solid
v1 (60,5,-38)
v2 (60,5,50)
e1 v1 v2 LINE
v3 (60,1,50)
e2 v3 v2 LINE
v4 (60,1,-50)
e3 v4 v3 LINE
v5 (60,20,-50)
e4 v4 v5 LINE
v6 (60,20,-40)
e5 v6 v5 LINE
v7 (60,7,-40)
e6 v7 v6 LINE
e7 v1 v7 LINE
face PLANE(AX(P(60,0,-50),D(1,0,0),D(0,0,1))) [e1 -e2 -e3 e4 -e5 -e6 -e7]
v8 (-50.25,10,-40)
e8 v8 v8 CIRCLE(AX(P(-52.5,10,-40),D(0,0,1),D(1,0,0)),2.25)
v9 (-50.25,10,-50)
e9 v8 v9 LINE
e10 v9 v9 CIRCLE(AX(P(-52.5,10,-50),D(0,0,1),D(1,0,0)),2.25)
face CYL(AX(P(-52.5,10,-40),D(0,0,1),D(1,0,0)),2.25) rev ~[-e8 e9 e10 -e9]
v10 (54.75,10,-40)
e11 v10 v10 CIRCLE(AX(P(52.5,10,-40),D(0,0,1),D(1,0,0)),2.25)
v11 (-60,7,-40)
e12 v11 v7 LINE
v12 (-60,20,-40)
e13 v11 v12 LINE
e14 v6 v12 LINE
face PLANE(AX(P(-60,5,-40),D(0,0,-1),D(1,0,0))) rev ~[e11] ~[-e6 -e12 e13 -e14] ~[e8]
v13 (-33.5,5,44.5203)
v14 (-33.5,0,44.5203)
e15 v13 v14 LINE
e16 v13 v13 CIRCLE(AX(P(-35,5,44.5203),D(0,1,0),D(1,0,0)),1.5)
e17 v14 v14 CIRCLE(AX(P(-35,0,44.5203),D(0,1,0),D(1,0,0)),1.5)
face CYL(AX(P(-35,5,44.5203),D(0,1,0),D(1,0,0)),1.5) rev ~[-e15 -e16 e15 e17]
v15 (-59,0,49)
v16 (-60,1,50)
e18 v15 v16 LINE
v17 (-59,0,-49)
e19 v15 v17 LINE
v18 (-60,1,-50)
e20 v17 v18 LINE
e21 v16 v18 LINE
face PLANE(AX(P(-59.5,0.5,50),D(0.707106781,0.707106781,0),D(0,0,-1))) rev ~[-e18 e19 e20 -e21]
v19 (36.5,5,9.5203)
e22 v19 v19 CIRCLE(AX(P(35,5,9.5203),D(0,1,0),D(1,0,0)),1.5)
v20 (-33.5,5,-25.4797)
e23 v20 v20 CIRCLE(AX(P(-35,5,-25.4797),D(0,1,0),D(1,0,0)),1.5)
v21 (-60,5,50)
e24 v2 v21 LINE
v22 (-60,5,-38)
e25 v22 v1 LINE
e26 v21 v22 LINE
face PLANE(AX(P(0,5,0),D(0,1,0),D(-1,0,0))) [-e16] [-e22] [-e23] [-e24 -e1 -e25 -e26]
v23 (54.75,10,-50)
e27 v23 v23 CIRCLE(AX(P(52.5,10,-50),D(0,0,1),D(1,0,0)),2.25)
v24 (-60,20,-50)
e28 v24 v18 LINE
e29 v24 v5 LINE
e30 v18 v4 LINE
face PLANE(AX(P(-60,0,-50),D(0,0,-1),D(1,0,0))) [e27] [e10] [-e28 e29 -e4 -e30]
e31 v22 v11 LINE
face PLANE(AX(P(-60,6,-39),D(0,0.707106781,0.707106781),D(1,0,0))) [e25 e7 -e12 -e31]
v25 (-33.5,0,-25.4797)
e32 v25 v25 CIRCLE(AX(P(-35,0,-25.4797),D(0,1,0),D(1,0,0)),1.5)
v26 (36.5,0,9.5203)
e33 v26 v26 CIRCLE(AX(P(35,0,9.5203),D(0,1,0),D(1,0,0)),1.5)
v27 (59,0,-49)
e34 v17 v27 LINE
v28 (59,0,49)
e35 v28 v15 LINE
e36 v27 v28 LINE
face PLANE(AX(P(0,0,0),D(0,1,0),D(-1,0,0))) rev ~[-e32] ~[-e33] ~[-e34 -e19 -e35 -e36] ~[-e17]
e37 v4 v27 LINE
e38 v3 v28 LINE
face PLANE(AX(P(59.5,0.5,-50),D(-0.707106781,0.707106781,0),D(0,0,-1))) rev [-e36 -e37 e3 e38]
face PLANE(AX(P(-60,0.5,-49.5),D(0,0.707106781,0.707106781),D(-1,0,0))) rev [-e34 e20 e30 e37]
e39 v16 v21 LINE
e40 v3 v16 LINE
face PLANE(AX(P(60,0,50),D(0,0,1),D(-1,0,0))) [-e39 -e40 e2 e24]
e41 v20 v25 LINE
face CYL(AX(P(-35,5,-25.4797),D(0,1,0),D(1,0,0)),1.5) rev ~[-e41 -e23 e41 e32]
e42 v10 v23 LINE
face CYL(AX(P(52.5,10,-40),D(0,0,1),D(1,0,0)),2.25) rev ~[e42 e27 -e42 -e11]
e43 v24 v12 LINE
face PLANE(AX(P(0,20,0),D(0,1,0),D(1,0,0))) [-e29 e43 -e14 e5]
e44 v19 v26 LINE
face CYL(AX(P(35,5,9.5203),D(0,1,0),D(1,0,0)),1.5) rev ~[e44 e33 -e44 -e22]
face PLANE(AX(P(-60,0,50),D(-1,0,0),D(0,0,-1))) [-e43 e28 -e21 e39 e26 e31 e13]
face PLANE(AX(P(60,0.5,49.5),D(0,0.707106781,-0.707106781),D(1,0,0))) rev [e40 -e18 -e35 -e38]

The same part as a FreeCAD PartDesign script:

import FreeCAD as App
import Part
import Sketcher

V = App.Vector


def edges_at(feature, points):
    """Names of the edges that pass closest to the given points."""
    edges = feature.Shape.Edges
    near = lambda p: min(range(len(edges)), key=lambda i: edges[i].distToShape(Part.Vertex(*p))[0])
    return sorted({f"Edge{near(p) + 1}" for p in points})


def add_polygon(sketch, points):
    """Adds a closed chain of lines whose ends are joined by coincident constraints."""
    first, n = sketch.GeometryCount, len(points)
    for a, b in zip(points, points[1:] + points[:1]):
        sketch.addGeometry(Part.LineSegment(App.Vector(*a, 0), App.Vector(*b, 0)), False)
    for i in range(n):
        sketch.addConstraint(Sketcher.Constraint("Coincident", first + i, 2, first + (i + 1) % n, 1))

doc = App.newDocument("Part")
params = doc.addObject("Spreadsheet::Sheet", "Params")
for row, (alias, value) in enumerate([
    ("sketch1_width", "120 mm"),
    ("sketch1_height", "100 mm"),
    ("pad1_length", "5 mm"),
    ("sketch2_height", "10 mm"),
    ("sketch2_width", "120 mm"),
    ("pad2_length", "15 mm"),
    ("sketch3_diameter", "4.5 mm"),
    ("sketch4_diameter", "3 mm"),
    ("pocket2_length", "5 mm"),
    ("chamfer_size", "2 mm"),
    ("chamfer2_size", "1 mm"),
], start=1):
    params.set(f"A{row}", alias)
    params.set(f"B{row}", "=" + value)
    params.setAlias(f"B{row}", alias)

body = doc.addObject("PartDesign::Body", "Body")

sketch1 = body.newObject("Sketcher::SketchObject", "Sketch")
sketch1.AttachmentSupport = (doc.getObject("XZ_Plane"), [""])
sketch1.MapMode = "FlatFace"
add_polygon(sketch1, [(-60, 50), (60, 50), (60, -50), (-60, -50)])
sketch1.addConstraint([
    Sketcher.Constraint("Horizontal", 0),
    Sketcher.Constraint("Vertical", 1),
    Sketcher.Constraint("Horizontal", 2),
    Sketcher.Constraint("Vertical", 3),
    Sketcher.Constraint("Symmetric", 0, 2, 2, 2, -1, 1),
    Sketcher.Constraint("DistanceX", 0, 1, 0, 2, 120.0),
    Sketcher.Constraint("DistanceY", 1, 2, 1, 1, 100.0),
])
sketch1.setExpression("Constraints[9]", "Params.sketch1_width")
sketch1.setExpression("Constraints[10]", "Params.sketch1_height")
pad1 = body.newObject("PartDesign::Pad", "Pad")
pad1.Profile = sketch1
pad1.setExpression("Length", "Params.pad1_length")
pad1.Reversed = True

sketch2 = body.newObject("Sketcher::SketchObject", "Sketch001")
sketch2.AttachmentSupport = (doc.getObject("XZ_Plane"), [""])
sketch2.MapMode = "FlatFace"
sketch2.AttachmentOffset = App.Placement(V(0, 0, -5), App.Rotation())
add_polygon(sketch2, [(-60, -50), (-60, -40), (60, -40), (60, -50)])
sketch2.addConstraint([
    Sketcher.Constraint("Vertical", 0),
    Sketcher.Constraint("Horizontal", 1),
    Sketcher.Constraint("Vertical", 2),
    Sketcher.Constraint("Horizontal", 3),
    Sketcher.Constraint("DistanceY", 0, 1, 0, 2, 10.0),
    Sketcher.Constraint("DistanceX", 1, 1, 1, 2, 120.0),
    Sketcher.Constraint("DistanceX", 0, 2, -1, 1, 60.0),
    Sketcher.Constraint("DistanceY", 0, 2, -1, 1, 40.0),
])
sketch2.setExpression("Constraints[8]", "Params.sketch2_height")
sketch2.setExpression("Constraints[9]", "Params.sketch2_width")
pad2 = body.newObject("PartDesign::Pad", "Pad001")
pad2.Profile = sketch2
pad2.setExpression("Length", "Params.pad2_length")
pad2.Reversed = True

sketch3 = body.newObject("Sketcher::SketchObject", "Sketch002")
sketch3.AttachmentSupport = (doc.getObject("XY_Plane"), [""])
sketch3.MapMode = "FlatFace"
sketch3.AttachmentOffset = App.Placement(V(0, 0, -40), App.Rotation())
sketch3.addGeometry([
    Part.Circle(V(-52.5, 10, 0), V(0, 0, 1), 2.2),
    Part.Circle(V(52.5, 10, 0), V(0, 0, 1), 2.2),
], False)
sketch3.addConstraint([
    Sketcher.Constraint("Equal", 0, 1),
    Sketcher.Constraint("Symmetric", 0, 3, 1, 3, -2),
    Sketcher.Constraint("Diameter", 0, 4.5),
    Sketcher.Constraint("DistanceY", -1, 1, 0, 3, 10.0),
    Sketcher.Constraint("DistanceX", 0, 3, 1, 3, 105.0),
])
sketch3.setExpression("Constraints[2]", "Params.sketch3_diameter")
pocket1 = body.newObject("PartDesign::Pocket", "Pocket")
pocket1.Profile = sketch3
pocket1.Type = "UpToFirst"

sketch4 = body.newObject("Sketcher::SketchObject", "Sketch003")
sketch4.AttachmentSupport = (doc.getObject("XZ_Plane"), [""])
sketch4.MapMode = "FlatFace"
sketch4.AttachmentOffset = App.Placement(V(0, 0, -5), App.Rotation())
sketch4.addGeometry([
    Part.Circle(V(-35, -25.5, 0), V(0, 0, 1), 1.5),
    Part.Circle(V(-35, 44.5, 0), V(0, 0, 1), 1.5),
    Part.Circle(V(35, 9.5, 0), V(0, 0, 1), 1.5),
], False)
sketch4.addConstraint([
    Sketcher.Constraint("Equal", 0, 1),
    Sketcher.Constraint("Equal", 1, 2),
    Sketcher.Constraint("Vertical", 0, 3, 1, 3),
    Sketcher.Constraint("Diameter", 0, 3.0),
    Sketcher.Constraint("DistanceX", 0, 3, -1, 1, 35.0),
    Sketcher.Constraint("DistanceX", -1, 1, 2, 3, 35.0),
    Sketcher.Constraint("DistanceY", 0, 3, 1, 3, 70.0),
    Sketcher.Constraint("DistanceY", 0, 3, 2, 3, 35.0),
    Sketcher.Constraint("DistanceY", 0, 3, -1, 1, 25.4797),
])
sketch4.setExpression("Constraints[3]", "Params.sketch4_diameter")
pocket2 = body.newObject("PartDesign::Pocket", "Pocket001")
pocket2.Profile = sketch4
pocket2.setExpression("Length", "Params.pocket2_length")
pocket2.Reversed = True
doc.recompute()

chamfer = body.newObject("PartDesign::Chamfer", "Chamfer")
chamfer.Base = (pocket2, edges_at(pocket2, [(0, 5, -40)]))
chamfer.setExpression("Size", "Params.chamfer_size")
doc.recompute()

chamfer2 = body.newObject("PartDesign::Chamfer", "Chamfer001")
chamfer2.Base = (chamfer, edges_at(chamfer, [
    (-60, 0, 0),
    (0, 0, 50),
    (0, 0, -50),
    (60, 0, 0),
]))
chamfer2.setExpression("Size", "Params.chamfer2_size")

doc.recompute()
